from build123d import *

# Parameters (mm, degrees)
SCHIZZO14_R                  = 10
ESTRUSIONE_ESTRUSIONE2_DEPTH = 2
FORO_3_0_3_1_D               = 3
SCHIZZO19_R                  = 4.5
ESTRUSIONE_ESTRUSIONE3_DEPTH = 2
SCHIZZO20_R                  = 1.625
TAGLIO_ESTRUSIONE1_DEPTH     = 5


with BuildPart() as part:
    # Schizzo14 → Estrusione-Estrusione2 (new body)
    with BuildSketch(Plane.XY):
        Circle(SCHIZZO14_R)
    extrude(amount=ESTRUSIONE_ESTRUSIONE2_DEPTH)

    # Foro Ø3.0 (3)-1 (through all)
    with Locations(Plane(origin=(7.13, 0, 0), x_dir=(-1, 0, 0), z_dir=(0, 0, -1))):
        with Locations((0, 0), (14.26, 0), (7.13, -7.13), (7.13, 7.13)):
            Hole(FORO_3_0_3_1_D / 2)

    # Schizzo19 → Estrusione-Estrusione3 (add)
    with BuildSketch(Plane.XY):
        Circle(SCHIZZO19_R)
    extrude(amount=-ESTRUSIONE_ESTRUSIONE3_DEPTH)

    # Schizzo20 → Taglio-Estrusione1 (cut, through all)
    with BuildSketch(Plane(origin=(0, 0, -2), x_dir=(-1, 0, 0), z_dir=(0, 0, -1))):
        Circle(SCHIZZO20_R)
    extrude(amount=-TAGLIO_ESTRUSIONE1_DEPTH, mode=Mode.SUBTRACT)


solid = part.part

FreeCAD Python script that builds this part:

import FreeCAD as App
import Part
import Sketcher
Q = App.Units.Quantity

doc = App.newDocument("Part")
params = doc.addObject("Spreadsheet::Sheet", "Params")
for row, (alias, value) in enumerate([
    ("sketch1_diameter", "20 mm"),
    ("pad1_length", "2 mm"),
    ("sketch2_diameter", "3 mm"),
    ("hole_diameter", "3 mm"),
    ("sketch3_diameter", "9 mm"),
    ("pad2_length", "2 mm"),
    ("sketch4_diameter", "3.25 mm"),
], start=1):
    params.set(f"A{row}", alias)
    params.set(f"B{row}", "=" + value)
    params.setAlias(f"B{row}", alias)

body = doc.addObject("PartDesign::Body", "Body")

sketch1 = body.newObject("Sketcher::SketchObject", "Sketch")
sketch1.AttachmentSupport = (doc.getObject("XY_Plane"), [""])
sketch1.MapMode = "FlatFace"
sketch1.addGeometry(Part.Circle(App.Vector(0, 0, 0), App.Vector(0, 0, 1), 10), False)
sketch1.addConstraint([
    Sketcher.Constraint("Coincident", 0, 3, -1, 1),
    Sketcher.Constraint("Diameter", 0, Q("20 mm")),
])
sketch1.setExpression("Constraints[1]", "Params.sketch1_diameter")
pad1 = body.newObject("PartDesign::Pad", "Pad")
pad1.Profile = sketch1
pad1.setExpression("Length", "Params.pad1_length")

sketch2 = body.newObject("Sketcher::SketchObject", "Sketch001")
sketch2.AttachmentSupport = (doc.getObject("XY_Plane"), [""])
sketch2.MapMode = "FlatFace"
sketch2.addGeometry([
    Part.Circle(App.Vector(7.1, 0, 0), App.Vector(0, 0, 1), 1.5),
    Part.Circle(App.Vector(-7.1, 0, 0), App.Vector(0, 0, 1), 1.5),
    Part.Circle(App.Vector(0, -7.1, 0), App.Vector(0, 0, 1), 1.5),
    Part.Circle(App.Vector(0, 7.1, 0), App.Vector(0, 0, 1), 1.5),
], False)
sketch2.addConstraint([
    Sketcher.Constraint("Equal", 0, 1),
    Sketcher.Constraint("Equal", 1, 2),
    Sketcher.Constraint("Equal", 2, 3),
    Sketcher.Constraint("Symmetric", 0, 3, 1, 3, -1, 1),
    Sketcher.Constraint("Symmetric", 2, 3, 3, 3, -1, 1),
    Sketcher.Constraint("PointOnObject", 0, 3, -1),
    Sketcher.Constraint("PointOnObject", 2, 3, -2),
    Sketcher.Constraint("Diameter", 0, Q("3 mm")),
    Sketcher.Constraint("DistanceX", -1, 1, 0, 3, Q("7.13 mm")),
    Sketcher.Constraint("DistanceY", 2, 3, -1, 1, Q("7.13 mm")),
])
sketch2.setExpression("Constraints[7]", "Params.sketch2_diameter")
doc.recompute()
hole = body.newObject("PartDesign::Hole", "Hole")
hole.Profile = sketch2
hole.ThreadType = "None"
hole.setExpression("Diameter", "Params.hole_diameter")
hole.DepthType = "ThroughAll"
hole.Reversed = True

sketch3 = body.newObject("Sketcher::SketchObject", "Sketch002")
sketch3.AttachmentSupport = (doc.getObject("XY_Plane"), [""])
sketch3.MapMode = "FlatFace"
sketch3.addGeometry(Part.Circle(App.Vector(0, 0, 0), App.Vector(0, 0, 1), 4.5), False)
sketch3.addConstraint([
    Sketcher.Constraint("Coincident", 0, 3, -1, 1),
    Sketcher.Constraint("Diameter", 0, Q("9 mm")),
])
sketch3.setExpression("Constraints[1]", "Params.sketch3_diameter")
pad2 = body.newObject("PartDesign::Pad", "Pad001")
pad2.Profile = sketch3
pad2.setExpression("Length", "Params.pad2_length")
pad2.Reversed = True

sketch4 = body.newObject("Sketcher::SketchObject", "Sketch003")
sketch4.AttachmentSupport = (doc.getObject("XY_Plane"), [""])
sketch4.MapMode = "FlatFace"
sketch4.AttachmentOffset = App.Placement(App.Vector(0, 0, -2), App.Rotation())
sketch4.addGeometry(Part.Circle(App.Vector(0, 0, 0), App.Vector(0, 0, 1), 1.6), False)
sketch4.addConstraint([
    Sketcher.Constraint("Coincident", 0, 3, -1, 1),
    Sketcher.Constraint("Diameter", 0, Q("3.25 mm")),
])
sketch4.setExpression("Constraints[1]", "Params.sketch4_diameter")
pocket1 = body.newObject("PartDesign::Pocket", "Pocket")
pocket1.Profile = sketch4
pocket1.Type = "ThroughAll"
pocket1.Reversed = True

doc.recompute()
